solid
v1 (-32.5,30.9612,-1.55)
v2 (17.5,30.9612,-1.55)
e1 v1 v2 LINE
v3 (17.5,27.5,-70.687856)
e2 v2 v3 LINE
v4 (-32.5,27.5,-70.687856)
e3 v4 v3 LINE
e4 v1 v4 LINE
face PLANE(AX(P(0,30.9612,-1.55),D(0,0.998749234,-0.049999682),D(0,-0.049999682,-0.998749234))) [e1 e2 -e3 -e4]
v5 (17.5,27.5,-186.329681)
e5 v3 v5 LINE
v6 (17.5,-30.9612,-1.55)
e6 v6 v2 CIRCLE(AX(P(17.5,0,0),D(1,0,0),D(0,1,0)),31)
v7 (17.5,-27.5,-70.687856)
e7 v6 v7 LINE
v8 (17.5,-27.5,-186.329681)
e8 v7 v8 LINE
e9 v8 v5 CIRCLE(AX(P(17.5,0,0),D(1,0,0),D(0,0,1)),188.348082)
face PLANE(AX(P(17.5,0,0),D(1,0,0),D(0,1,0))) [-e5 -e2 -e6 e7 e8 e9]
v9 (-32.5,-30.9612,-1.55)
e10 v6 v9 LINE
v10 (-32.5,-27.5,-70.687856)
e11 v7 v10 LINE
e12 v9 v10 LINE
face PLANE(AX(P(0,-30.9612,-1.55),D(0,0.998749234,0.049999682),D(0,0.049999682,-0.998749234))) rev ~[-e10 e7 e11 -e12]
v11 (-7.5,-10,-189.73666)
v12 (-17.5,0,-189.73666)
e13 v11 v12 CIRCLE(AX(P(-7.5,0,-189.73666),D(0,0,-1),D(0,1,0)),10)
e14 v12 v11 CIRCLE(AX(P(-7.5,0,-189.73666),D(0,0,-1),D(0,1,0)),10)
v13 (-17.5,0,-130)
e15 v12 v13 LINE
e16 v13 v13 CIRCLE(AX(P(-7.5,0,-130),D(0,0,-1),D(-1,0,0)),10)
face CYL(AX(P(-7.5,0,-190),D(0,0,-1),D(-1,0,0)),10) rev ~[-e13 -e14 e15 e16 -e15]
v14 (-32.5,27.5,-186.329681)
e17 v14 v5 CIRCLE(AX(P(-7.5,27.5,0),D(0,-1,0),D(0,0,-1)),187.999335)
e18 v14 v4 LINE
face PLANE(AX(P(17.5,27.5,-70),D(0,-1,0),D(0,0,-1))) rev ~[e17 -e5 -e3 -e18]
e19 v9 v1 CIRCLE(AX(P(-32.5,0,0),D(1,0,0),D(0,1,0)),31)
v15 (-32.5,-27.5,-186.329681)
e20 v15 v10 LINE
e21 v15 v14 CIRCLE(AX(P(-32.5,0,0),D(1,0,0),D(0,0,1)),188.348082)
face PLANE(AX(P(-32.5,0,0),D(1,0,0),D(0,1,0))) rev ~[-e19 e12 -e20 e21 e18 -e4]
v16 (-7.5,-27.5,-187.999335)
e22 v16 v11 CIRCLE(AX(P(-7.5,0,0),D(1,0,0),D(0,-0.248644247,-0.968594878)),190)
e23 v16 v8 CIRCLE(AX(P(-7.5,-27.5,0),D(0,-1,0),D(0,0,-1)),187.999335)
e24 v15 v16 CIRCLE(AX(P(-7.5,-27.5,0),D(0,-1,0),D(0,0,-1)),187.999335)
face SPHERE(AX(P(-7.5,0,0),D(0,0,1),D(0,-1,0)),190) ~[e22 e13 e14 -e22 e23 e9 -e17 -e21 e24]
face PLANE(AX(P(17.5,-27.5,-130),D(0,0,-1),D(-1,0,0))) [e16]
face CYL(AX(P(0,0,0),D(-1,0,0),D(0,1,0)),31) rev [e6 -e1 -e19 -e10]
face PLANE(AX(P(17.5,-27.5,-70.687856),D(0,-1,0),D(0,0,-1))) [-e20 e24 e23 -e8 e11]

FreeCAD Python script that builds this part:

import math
import FreeCAD as App
import Part
import Sketcher

doc = App.newDocument("Part")
body = doc.addObject("PartDesign::Body", "Body")

# Sketch on YZ plane
sketch1 = doc.addObject("Sketcher::SketchObject", "Sketch")
body.addObject(sketch1)
sketch1.AttachmentSupport = (doc.YZ_Plane, [""])
sketch1.MapMode = "FlatFace"
sketch1.addGeometry(Part.Circle(App.Vector(0, -70, 0), App.Vector(0, 0, 1), 27.5), False)
sketch1.addConstraint([
    Sketcher.Constraint("PointOnObject", 0, 3, -2),
    Sketcher.Constraint("Diameter", 0, 55.0),
    Sketcher.Constraint("DistanceY", 0, 3, -1, 1, 70.0),
])
pad1 = doc.addObject("PartDesign::Pad", "Pad")
body.addObject(pad1)
pad1.Profile = sketch1
pad1.Type = "TwoLengths"
pad1.Length = 17.5
pad1.Length2 = 32.5

# Sketch on YZ plane
sketch2 = doc.addObject("Sketcher::SketchObject", "Sketch001")
body.addObject(sketch2)
sketch2.AttachmentSupport = (doc.YZ_Plane, [""])
sketch2.MapMode = "FlatFace"
sketch2.AttachmentOffset = App.Placement(App.Vector(0, 0, 17.5), App.Rotation())
sketch2.addGeometry([
    Part.ArcOfCircle(Part.Circle(App.Vector(0, -70, 0), App.Vector(0, 0, 1), 27.5), math.radians(180), math.radians(360)),
    Part.LineSegment(App.Vector(-27.5, -70, 0), App.Vector(-27.5, -190, 0)),
    Part.LineSegment(App.Vector(-27.5, -190, 0), App.Vector(27.5, -190, 0)),
    Part.LineSegment(App.Vector(27.5, -190, 0), App.Vector(27.5, -70, 0)),
], False)
sketch2.addConstraint([
    Sketcher.Constraint("Tangent", 0, 1, 1, 1),
    Sketcher.Constraint("Coincident", 1, 2, 2, 1),
    Sketcher.Constraint("Coincident", 2, 2, 3, 1),
    Sketcher.Constraint("Tangent", 3, 2, 0, 2),
    Sketcher.Constraint("Vertical", 1),
    Sketcher.Constraint("Horizontal", 2),
    Sketcher.Constraint("Vertical", 3),
    Sketcher.Constraint("PointOnObject", 0, 3, -2),
    Sketcher.Constraint("Radius", 0, 27.5),
    Sketcher.Constraint("DistanceY", 1, 2, 1, 1, 120.0),
    Sketcher.Constraint("DistanceY", 0, 3, -1, 1, 70.0),
])
pad2 = doc.addObject("PartDesign::Pad", "Pad001")
body.addObject(pad2)
pad2.Profile = sketch2
pad2.Length = 50
pad2.Reversed = True

# Sketch on XY plane
sketch3 = doc.addObject("Sketcher::SketchObject", "Sketch002")
body.addObject(sketch3)
sketch3.AttachmentSupport = (doc.XY_Plane, [""])
sketch3.MapMode = "FlatFace"
sketch3.AttachmentOffset = App.Placement(App.Vector(0, 0, -190), App.Rotation())
sketch3.addGeometry(Part.Circle(App.Vector(-7.5, 0, 0), App.Vector(0, 0, 1), 10), False)
sketch3.addConstraint([
    Sketcher.Constraint("PointOnObject", 0, 3, -1),
    Sketcher.Constraint("Diameter", 0, 20.0),
    Sketcher.Constraint("DistanceX", 0, 3, -1, 1, 7.5),
])
pocket1 = doc.addObject("PartDesign::Pocket", "Pocket")
body.addObject(pocket1)
pocket1.Profile = sketch3
pocket1.Length = 60
pocket1.Reversed = True

# Sketch on YZ plane
sketch4 = doc.addObject("Sketcher::SketchObject", "Sketch003")
body.addObject(sketch4)
sketch4.AttachmentSupport = (doc.YZ_Plane, [""])
sketch4.MapMode = "FlatFace"
sketch4.AttachmentOffset = App.Placement(App.Vector(0, 0, -7.5), App.Rotation())
sketch4.addGeometry([
    Part.LineSegment(App.Vector(-47.2424, -190, 0), App.Vector(-47.2424, -184.033, 0)),
    Part.ArcOfCircle(Part.Circle(App.Vector(0, 0, 0), App.Vector(0, 0, 1), 190), math.radians(-104.3973), math.radians(-90)),
    Part.LineSegment(App.Vector(0, -190, 0), App.Vector(-47.2424, -190, 0)),
], False)
sketch4.addConstraint([
    Sketcher.Constraint("Coincident", 0, 2, 1, 1),
    Sketcher.Constraint("Tangent", 1, 2, 2, 1),
    Sketcher.Constraint("Coincident", 2, 2, 0, 1),
    Sketcher.Constraint("Vertical", 0),
    Sketcher.Constraint("Horizontal", 2),
    Sketcher.Constraint("Coincident", 1, 3, -1, 1),
    Sketcher.Constraint("Radius", 1, 190.0),
    Sketcher.Constraint("DistanceY", 0, 1, 0, 2, 5.967),
])
groove = doc.addObject("PartDesign::Groove", "Groove")
body.addObject(groove)
groove.Profile = sketch4
groove.ReferenceAxis = (sketch4, ["V_Axis"])
groove.Angle = 360

# Sketch on YZ plane
sketch5 = doc.addObject("Sketcher::SketchObject", "Sketch004")
body.addObject(sketch5)
sketch5.AttachmentSupport = (doc.YZ_Plane, [""])
sketch5.MapMode = "FlatFace"
sketch5.addGeometry([
    Part.ArcOfCircle(Part.Circle(App.Vector(0, -70, 0), App.Vector(0, 0, 1), 27.5), math.radians(0), math.radians(180)),  # 0
    Part.LineSegment(App.Vector(27.5, -70, 0), App.Vector(27.5, -70.687856, 0)),  # 1
    Part.LineSegment(App.Vector(27.5, -70.687856, 0), App.Vector(30.9612, -1.55, 0)),  # 2
    Part.ArcOfCircle(Part.Circle(App.Vector(0, 0, 0), App.Vector(0, 0, 1), 31), math.radians(-177.134014), math.radians(-2.865986)),  # 3
    Part.LineSegment(App.Vector(-30.9612, -1.55, 0), App.Vector(-27.5, -70.687856, 0)),  # 4
    Part.LineSegment(App.Vector(-27.5, -70.687856, 0), App.Vector(-27.5, -70, 0)),  # 5
], False)
sketch5.addConstraint([
    Sketcher.Constraint("Tangent", 0, 1, 1, 1),
    Sketcher.Constraint("Coincident", 1, 2, 2, 1),
    Sketcher.Constraint("Tangent", 2, 2, 3, 2),
    Sketcher.Constraint("Tangent", 3, 1, 4, 1),
    Sketcher.Constraint("Coincident", 4, 2, 5, 1),
    Sketcher.Constraint("Tangent", 5, 2, 0, 2),
    Sketcher.Constraint("Vertical", 1),
    Sketcher.Constraint("Vertical", 5),
    Sketcher.Constraint("Coincident", 3, 3, -1, 1),
    Sketcher.Constraint("Symmetric", 1, 2, 4, 2, -2),
    Sketcher.Constraint("Radius", 3, 31.0),
    Sketcher.Constraint("Radius", 0, 27.5),
    Sketcher.Constraint("DistanceY", 0, 3, -1, 1, 70.0),
    Sketcher.Constraint("DistanceY", 2, 2, -1, 1, 1.55),
])
pad3 = doc.addObject("PartDesign::Pad", "Pad002")
body.addObject(pad3)
pad3.Profile = sketch5
pad3.Type = "TwoLengths"
pad3.Length = 17.5
pad3.Length2 = 32.5

doc.recompute()
